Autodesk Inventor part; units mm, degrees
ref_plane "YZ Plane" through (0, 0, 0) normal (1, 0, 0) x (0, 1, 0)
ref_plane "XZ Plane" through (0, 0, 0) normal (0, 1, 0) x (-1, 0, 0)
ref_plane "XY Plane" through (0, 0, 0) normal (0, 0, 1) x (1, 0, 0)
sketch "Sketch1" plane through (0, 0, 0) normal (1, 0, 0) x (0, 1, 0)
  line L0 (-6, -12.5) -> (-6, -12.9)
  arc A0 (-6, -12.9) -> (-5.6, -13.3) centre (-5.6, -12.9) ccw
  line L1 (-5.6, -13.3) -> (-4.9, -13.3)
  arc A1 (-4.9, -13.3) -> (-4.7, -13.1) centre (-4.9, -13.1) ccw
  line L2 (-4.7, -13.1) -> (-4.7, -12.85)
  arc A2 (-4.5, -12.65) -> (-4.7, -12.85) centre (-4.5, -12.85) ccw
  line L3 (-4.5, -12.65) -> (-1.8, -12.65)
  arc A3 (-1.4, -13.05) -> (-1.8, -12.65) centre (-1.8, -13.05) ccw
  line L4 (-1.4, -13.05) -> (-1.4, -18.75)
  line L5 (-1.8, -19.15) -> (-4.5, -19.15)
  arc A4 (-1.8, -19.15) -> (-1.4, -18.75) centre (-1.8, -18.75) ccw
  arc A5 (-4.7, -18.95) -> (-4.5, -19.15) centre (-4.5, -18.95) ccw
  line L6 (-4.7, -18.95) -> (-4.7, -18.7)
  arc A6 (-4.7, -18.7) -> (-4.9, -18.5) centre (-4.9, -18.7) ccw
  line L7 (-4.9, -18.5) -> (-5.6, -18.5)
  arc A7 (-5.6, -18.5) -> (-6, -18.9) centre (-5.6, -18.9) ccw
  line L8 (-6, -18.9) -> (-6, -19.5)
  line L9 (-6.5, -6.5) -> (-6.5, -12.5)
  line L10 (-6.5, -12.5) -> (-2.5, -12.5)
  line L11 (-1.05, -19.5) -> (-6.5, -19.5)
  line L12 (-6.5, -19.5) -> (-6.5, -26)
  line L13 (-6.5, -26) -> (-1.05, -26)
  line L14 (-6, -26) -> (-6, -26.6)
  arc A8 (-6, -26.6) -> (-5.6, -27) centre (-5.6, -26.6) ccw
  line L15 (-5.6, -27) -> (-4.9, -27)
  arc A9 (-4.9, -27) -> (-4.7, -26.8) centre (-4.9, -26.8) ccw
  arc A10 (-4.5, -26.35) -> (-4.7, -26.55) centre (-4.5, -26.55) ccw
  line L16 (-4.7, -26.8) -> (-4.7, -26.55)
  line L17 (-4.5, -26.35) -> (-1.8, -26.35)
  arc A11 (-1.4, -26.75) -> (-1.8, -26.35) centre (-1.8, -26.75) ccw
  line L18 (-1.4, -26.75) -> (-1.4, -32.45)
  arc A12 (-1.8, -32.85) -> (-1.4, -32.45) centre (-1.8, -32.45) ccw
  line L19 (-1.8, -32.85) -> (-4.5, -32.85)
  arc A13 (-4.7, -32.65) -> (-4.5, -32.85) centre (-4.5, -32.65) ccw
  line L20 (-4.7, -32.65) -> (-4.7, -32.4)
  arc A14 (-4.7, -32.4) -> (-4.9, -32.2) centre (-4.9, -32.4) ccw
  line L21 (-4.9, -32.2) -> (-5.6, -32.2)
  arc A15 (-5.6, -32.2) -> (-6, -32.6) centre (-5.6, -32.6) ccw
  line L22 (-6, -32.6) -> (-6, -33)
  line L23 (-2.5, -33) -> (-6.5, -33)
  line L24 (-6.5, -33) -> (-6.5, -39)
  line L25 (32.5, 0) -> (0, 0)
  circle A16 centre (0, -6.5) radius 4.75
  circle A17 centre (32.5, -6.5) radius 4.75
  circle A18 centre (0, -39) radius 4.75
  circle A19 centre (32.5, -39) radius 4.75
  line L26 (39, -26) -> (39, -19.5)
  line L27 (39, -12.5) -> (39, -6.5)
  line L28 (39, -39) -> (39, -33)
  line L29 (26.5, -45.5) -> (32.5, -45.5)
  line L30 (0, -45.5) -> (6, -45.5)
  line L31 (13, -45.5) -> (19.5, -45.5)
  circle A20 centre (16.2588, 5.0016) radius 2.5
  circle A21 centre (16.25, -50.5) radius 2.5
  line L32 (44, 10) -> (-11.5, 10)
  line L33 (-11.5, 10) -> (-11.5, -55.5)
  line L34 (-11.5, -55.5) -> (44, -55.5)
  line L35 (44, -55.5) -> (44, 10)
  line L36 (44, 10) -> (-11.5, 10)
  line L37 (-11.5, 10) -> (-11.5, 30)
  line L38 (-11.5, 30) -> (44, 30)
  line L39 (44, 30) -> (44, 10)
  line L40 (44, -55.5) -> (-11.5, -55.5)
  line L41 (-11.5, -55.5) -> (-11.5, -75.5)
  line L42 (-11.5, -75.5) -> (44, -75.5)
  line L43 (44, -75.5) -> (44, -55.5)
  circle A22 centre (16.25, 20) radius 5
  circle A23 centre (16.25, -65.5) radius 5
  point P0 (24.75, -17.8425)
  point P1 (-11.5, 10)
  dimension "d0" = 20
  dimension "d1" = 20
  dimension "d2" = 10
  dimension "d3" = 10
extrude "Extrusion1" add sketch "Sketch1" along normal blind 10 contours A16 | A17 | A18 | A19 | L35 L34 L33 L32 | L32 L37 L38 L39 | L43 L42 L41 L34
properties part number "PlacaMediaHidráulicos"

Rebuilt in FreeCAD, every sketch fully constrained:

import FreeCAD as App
import Part
import Sketcher
from FreeCAD import Vector
Q = App.Units.Quantity

doc = App.newDocument("Part")
body = doc.addObject("PartDesign::Body", "Body")

# Sketch on YZ plane
sketch1 = doc.addObject("Sketcher::SketchObject", "Sketch")
body.addObject(sketch1)
sketch1.AttachmentSupport = (doc.YZ_Plane, [""])
sketch1.MapMode = "FlatFace"
sketch1.addGeometry([
    Part.LineSegment(Vector(44, 30, 0), Vector(-11.5, 30, 0)),  # 0
    Part.LineSegment(Vector(-11.5, 30, 0), Vector(-11.5, -75.5, 0)),  # 1
    Part.LineSegment(Vector(-11.5, -75.5, 0), Vector(44, -75.5, 0)),  # 2
    Part.LineSegment(Vector(44, -75.5, 0), Vector(44, 30, 0)),  # 3
    Part.Circle(Vector(16.25, -50.5, 0), Vector(0, 0, 1), 2.5),  # 4
    Part.Circle(Vector(16.2588, 5.0016, 0), Vector(0, 0, 1), 2.5),  # 5
    Part.Circle(Vector(16.25, -65.5, 0), Vector(0, 0, 1), 5),  # 6
    Part.Circle(Vector(16.25, 20, 0), Vector(0, 0, 1), 5),  # 7
], False)
sketch1.addConstraint([
    Sketcher.Constraint("Coincident", 0, 2, 1, 1),
    Sketcher.Constraint("Coincident", 1, 2, 2, 1),
    Sketcher.Constraint("Coincident", 2, 2, 3, 1),
    Sketcher.Constraint("Coincident", 3, 2, 0, 1),
    Sketcher.Constraint("Horizontal", 0),
    Sketcher.Constraint("Vertical", 1),
    Sketcher.Constraint("Horizontal", 2),
    Sketcher.Constraint("Vertical", 3),
    Sketcher.Constraint("Equal", 4, 5),
    Sketcher.Constraint("Equal", 6, 7),
    Sketcher.Constraint("Vertical", 4, 3, 6, 3),
    Sketcher.Constraint("Vertical", 6, 3, 7, 3),
    Sketcher.Constraint("Diameter", 6, Q("10 mm")),
    Sketcher.Constraint("Diameter", 4, Q("5 mm")),
    Sketcher.Constraint("DistanceY", -1, 1, 7, 3, Q("20 mm")),
    Sketcher.Constraint("DistanceY", 7, 3, 0, 2, Q("10 mm")),
    Sketcher.Constraint("DistanceY", 1, 2, 6, 3, Q("10 mm")),
    Sketcher.Constraint("DistanceX", 0, 2, 0, 1, Q("55.5 mm")),
    Sketcher.Constraint("DistanceY", 1, 2, 1, 1, Q("105.5 mm")),
    Sketcher.Constraint("DistanceX", -1, 1, 2, 2, Q("44 mm")),
    Sketcher.Constraint("DistanceY", 6, 3, 4, 3, Q("15 mm")),
    Sketcher.Constraint("DistanceX", -1, 1, 4, 3, Q("16.25 mm")),
    Sketcher.Constraint("DistanceX", -1, 1, 5, 3, Q("16.2588 mm")),
    Sketcher.Constraint("DistanceY", -1, 1, 5, 3, Q("5.0016 mm")),
])
pad1 = doc.addObject("PartDesign::Pad", "Pad")
body.addObject(pad1)
pad1.Profile = sketch1
pad1.Length = 10

doc.recompute()
